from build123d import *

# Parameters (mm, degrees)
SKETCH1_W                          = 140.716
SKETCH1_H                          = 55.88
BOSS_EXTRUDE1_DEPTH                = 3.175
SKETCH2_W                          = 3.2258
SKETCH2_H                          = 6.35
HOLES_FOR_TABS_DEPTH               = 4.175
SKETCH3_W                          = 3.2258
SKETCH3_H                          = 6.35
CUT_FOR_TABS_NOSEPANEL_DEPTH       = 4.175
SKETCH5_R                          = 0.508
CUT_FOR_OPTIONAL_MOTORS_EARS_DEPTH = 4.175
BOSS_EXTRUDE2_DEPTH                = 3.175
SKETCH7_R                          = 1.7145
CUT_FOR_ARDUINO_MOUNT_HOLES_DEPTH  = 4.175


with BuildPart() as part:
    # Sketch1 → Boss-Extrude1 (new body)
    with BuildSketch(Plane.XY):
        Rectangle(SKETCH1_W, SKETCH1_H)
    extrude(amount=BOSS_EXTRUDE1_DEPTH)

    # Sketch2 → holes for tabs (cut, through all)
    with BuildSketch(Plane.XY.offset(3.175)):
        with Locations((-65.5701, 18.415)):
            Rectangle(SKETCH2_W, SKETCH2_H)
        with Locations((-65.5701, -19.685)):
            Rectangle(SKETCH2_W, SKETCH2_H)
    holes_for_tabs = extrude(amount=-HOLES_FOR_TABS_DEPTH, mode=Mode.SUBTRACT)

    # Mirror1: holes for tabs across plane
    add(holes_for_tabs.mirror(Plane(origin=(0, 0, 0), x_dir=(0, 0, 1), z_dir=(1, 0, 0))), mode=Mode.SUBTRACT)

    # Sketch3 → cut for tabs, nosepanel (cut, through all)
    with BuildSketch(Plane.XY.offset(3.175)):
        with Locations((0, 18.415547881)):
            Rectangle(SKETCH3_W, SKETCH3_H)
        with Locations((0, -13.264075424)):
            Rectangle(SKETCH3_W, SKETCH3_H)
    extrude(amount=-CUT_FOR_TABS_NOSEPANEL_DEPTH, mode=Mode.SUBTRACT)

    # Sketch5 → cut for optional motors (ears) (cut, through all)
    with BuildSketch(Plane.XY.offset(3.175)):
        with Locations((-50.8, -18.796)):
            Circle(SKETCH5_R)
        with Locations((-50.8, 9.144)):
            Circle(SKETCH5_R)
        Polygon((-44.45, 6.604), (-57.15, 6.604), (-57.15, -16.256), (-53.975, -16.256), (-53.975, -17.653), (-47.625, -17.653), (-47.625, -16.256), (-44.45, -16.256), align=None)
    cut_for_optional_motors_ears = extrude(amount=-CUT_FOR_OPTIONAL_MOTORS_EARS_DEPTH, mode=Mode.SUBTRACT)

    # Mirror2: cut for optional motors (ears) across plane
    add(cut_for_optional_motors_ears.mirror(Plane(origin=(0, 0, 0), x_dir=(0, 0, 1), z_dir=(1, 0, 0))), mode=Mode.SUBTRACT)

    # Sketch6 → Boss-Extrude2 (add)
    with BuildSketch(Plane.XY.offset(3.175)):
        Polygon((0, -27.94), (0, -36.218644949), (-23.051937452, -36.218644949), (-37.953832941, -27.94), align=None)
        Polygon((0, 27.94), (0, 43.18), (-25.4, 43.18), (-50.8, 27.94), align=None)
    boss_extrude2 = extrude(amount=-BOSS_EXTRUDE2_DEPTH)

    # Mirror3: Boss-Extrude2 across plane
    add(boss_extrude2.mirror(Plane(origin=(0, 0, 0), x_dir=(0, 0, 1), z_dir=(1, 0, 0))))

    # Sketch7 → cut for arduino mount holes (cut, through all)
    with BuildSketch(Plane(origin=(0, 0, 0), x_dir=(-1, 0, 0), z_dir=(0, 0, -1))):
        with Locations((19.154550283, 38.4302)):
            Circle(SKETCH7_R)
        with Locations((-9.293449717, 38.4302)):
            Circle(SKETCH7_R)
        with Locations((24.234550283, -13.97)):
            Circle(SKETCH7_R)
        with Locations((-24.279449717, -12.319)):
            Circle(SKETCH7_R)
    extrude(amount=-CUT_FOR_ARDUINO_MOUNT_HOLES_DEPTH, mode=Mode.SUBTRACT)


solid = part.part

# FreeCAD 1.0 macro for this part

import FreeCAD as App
import Part
import Sketcher
from FreeCAD import Vector
Q = App.Units.Quantity

doc = App.newDocument("Part")
body = doc.addObject("PartDesign::Body", "Body")

sketch1 = body.newObject("Sketcher::SketchObject", "Sketch")
sketch1.AttachmentSupport = (doc.getObject("XY_Plane"), [""])
sketch1.MapMode = "FlatFace"
sketch1.addGeometry(Part.LineSegment(Vector(-70, 28, 0), Vector(-70, -28, 0)), False)
sketch1.addGeometry(Part.LineSegment(Vector(-70, -28, 0), Vector(70, -28, 0)), False)
sketch1.addGeometry(Part.LineSegment(Vector(70, -28, 0), Vector(70, 28, 0)), False)
sketch1.addGeometry(Part.LineSegment(Vector(70, 28, 0), Vector(-70, 28, 0)), False)
sketch1.addConstraint(Sketcher.Constraint("Coincident", 0, 2, 1, 1))
sketch1.addConstraint(Sketcher.Constraint("Coincident", 1, 2, 2, 1))
sketch1.addConstraint(Sketcher.Constraint("Coincident", 2, 2, 3, 1))
sketch1.addConstraint(Sketcher.Constraint("Coincident", 3, 2, 0, 1))
sketch1.addConstraint(Sketcher.Constraint("Vertical", 0))
sketch1.addConstraint(Sketcher.Constraint("Horizontal", 1))
sketch1.addConstraint(Sketcher.Constraint("Vertical", 2))
sketch1.addConstraint(Sketcher.Constraint("Horizontal", 3))
sketch1.addConstraint(Sketcher.Constraint("Symmetric", 0, 2, 2, 2, -1, 1))
sketch1.addConstraint(Sketcher.Constraint("DistanceY", 0, 2, 0, 1, Q("2.2 in")))
sketch1.addConstraint(Sketcher.Constraint("DistanceX", 1, 1, 1, 2, Q("5.54 in")))
pad1 = body.newObject("PartDesign::Pad", "Pad")
pad1.Profile = sketch1
pad1.Length = Q("0.125 in")

sketch2 = body.newObject("Sketcher::SketchObject", "Sketch001")
sketch2.AttachmentSupport = (doc.getObject("XY_Plane"), [""])
sketch2.MapMode = "FlatFace"
sketch2.AttachmentOffset = App.Placement(Vector(0, 0, 0.125 * 25.4), App.Rotation())
sketch2.addGeometry(Part.LineSegment(Vector(-67.2, 21.6, 0), Vector(-67.2, 15.2, 0)), False)
sketch2.addGeometry(Part.LineSegment(Vector(-67.2, 15.2, 0), Vector(-64, 15.2, 0)), False)
sketch2.addGeometry(Part.LineSegment(Vector(-64, 15.2, 0), Vector(-64, 21.6, 0)), False)
sketch2.addGeometry(Part.LineSegment(Vector(-64, 21.6, 0), Vector(-67.2, 21.6, 0)), False)
sketch2.addGeometry(Part.LineSegment(Vector(-67.2, -16.5, 0), Vector(-67.2, -22.9, 0)), False)
sketch2.addGeometry(Part.LineSegment(Vector(-67.2, -22.9, 0), Vector(-64, -22.9, 0)), False)
sketch2.addGeometry(Part.LineSegment(Vector(-64, -22.9, 0), Vector(-64, -16.5, 0)), False)
sketch2.addGeometry(Part.LineSegment(Vector(-64, -16.5, 0), Vector(-67.2, -16.5, 0)), False)
sketch2.addConstraint(Sketcher.Constraint("Coincident", 0, 2, 1, 1))
sketch2.addConstraint(Sketcher.Constraint("Coincident", 1, 2, 2, 1))
sketch2.addConstraint(Sketcher.Constraint("Coincident", 2, 2, 3, 1))
sketch2.addConstraint(Sketcher.Constraint("Coincident", 3, 2, 0, 1))
sketch2.addConstraint(Sketcher.Constraint("Coincident", 4, 2, 5, 1))
sketch2.addConstraint(Sketcher.Constraint("Coincident", 5, 2, 6, 1))
sketch2.addConstraint(Sketcher.Constraint("Coincident", 6, 2, 7, 1))
sketch2.addConstraint(Sketcher.Constraint("Coincident", 7, 2, 4, 1))
sketch2.addConstraint(Sketcher.Constraint("Vertical", 0))
sketch2.addConstraint(Sketcher.Constraint("Horizontal", 1))
sketch2.addConstraint(Sketcher.Constraint("Vertical", 2))
sketch2.addConstraint(Sketcher.Constraint("Horizontal", 3))
sketch2.addConstraint(Sketcher.Constraint("Vertical", 4))
sketch2.addConstraint(Sketcher.Constraint("Horizontal", 5))
sketch2.addConstraint(Sketcher.Constraint("Vertical", 6))
sketch2.addConstraint(Sketcher.Constraint("Horizontal", 7))
sketch2.addConstraint(Sketcher.Constraint("Vertical", 3, 2, 4, 2))
sketch2.addConstraint(Sketcher.Constraint("Vertical", 2, 2, 5, 2))
sketch2.addConstraint(Sketcher.Constraint("Equal", 2, 4))
sketch2.addConstraint(Sketcher.Constraint("DistanceY", 0, 2, 0, 1, Q("0.25 in")))
sketch2.addConstraint(Sketcher.Constraint("DistanceY", -1, 1, 0, 2, Q("0.6 in")))
sketch2.addConstraint(Sketcher.Constraint("DistanceY", 4, 2, -1, 1, Q("0.9 in")))
sketch2.addConstraint(Sketcher.Constraint("DistanceX", 1, 1, 1, 2, Q("0.127 in")))
sketch2.addConstraint(Sketcher.Constraint("DistanceX", 0, 2, -1, 1, Q("2.645 in")))
pocket1 = body.newObject("PartDesign::Pocket", "Pocket")
pocket1.Profile = sketch2
pocket1.Type = "ThroughAll"
doc.recompute()

mirrored = body.newObject("PartDesign::Mirrored", "Mirrored")
mirrored.Originals = [pocket1]
mirrored.MirrorPlane = (doc.getObject("YZ_Plane"), [""])
body.Tip = mirrored

sketch3 = body.newObject("Sketcher::SketchObject", "Sketch002")
sketch3.AttachmentSupport = (doc.getObject("XY_Plane"), [""])
sketch3.MapMode = "FlatFace"
sketch3.AttachmentOffset = App.Placement(Vector(0, 0, 0.125 * 25.4), App.Rotation())
sketch3.addGeometry(Part.LineSegment(Vector(-1.6, 21.6, 0), Vector(-1.6, 15.2, 0)), False)
sketch3.addGeometry(Part.LineSegment(Vector(-1.6, 15.2, 0), Vector(1.6, 15.2, 0)), False)
sketch3.addGeometry(Part.LineSegment(Vector(1.6, 15.2, 0), Vector(1.6, 21.6, 0)), False)
sketch3.addGeometry(Part.LineSegment(Vector(1.6, 21.6, 0), Vector(-1.6, 21.6, 0)), False)
sketch3.addGeometry(Part.LineSegment(Vector(-1.6, -10.1, 0), Vector(-1.6, -16.4, 0)), False)
sketch3.addGeometry(Part.LineSegment(Vector(-1.6, -16.4, 0), Vector(1.6, -16.4, 0)), False)
sketch3.addGeometry(Part.LineSegment(Vector(1.6, -16.4, 0), Vector(1.6, -10.1, 0)), False)
sketch3.addGeometry(Part.LineSegment(Vector(1.6, -10.1, 0), Vector(-1.6, -10.1, 0)), False)
sketch3.addConstraint(Sketcher.Constraint("Coincident", 0, 2, 1, 1))
sketch3.addConstraint(Sketcher.Constraint("Coincident", 1, 2, 2, 1))
sketch3.addConstraint(Sketcher.Constraint("Coincident", 2, 2, 3, 1))
sketch3.addConstraint(Sketcher.Constraint("Coincident", 3, 2, 0, 1))
sketch3.addConstraint(Sketcher.Constraint("Coincident", 4, 2, 5, 1))
sketch3.addConstraint(Sketcher.Constraint("Coincident", 5, 2, 6, 1))
sketch3.addConstraint(Sketcher.Constraint("Coincident", 6, 2, 7, 1))
sketch3.addConstraint(Sketcher.Constraint("Coincident", 7, 2, 4, 1))
sketch3.addConstraint(Sketcher.Constraint("Vertical", 0))
sketch3.addConstraint(Sketcher.Constraint("Horizontal", 1))
sketch3.addConstraint(Sketcher.Constraint("Vertical", 2))
sketch3.addConstraint(Sketcher.Constraint("Horizontal", 3))
sketch3.addConstraint(Sketcher.Constraint("Vertical", 4))
sketch3.addConstraint(Sketcher.Constraint("Horizontal", 5))
sketch3.addConstraint(Sketcher.Constraint("Vertical", 6))
sketch3.addConstraint(Sketcher.Constraint("Horizontal", 7))
sketch3.addConstraint(Sketcher.Constraint("Vertical", 3, 2, 4, 2))
sketch3.addConstraint(Sketcher.Constraint("Vertical", 2, 2, 5, 2))
sketch3.addConstraint(Sketcher.Constraint("Equal", 2, 4))
sketch3.addConstraint(Sketcher.Constraint("DistanceY", 0, 2, 0, 1, Q("0.25 in")))
sketch3.addConstraint(Sketcher.Constraint("DistanceX", 1, 1, 1, 2, Q("0.127 in")))
sketch3.addConstraint(Sketcher.Constraint("DistanceX", 0, 2, -1, 1, Q("0.0635 in")))
sketch3.addConstraint(Sketcher.Constraint("DistanceY", -1, 1, 0, 2, Q("15.240548 mm")))
sketch3.addConstraint(Sketcher.Constraint("DistanceY", 4, 2, -1, 1, Q("16.439075 mm")))
pocket2 = body.newObject("PartDesign::Pocket", "Pocket001")
pocket2.Profile = sketch3
pocket2.Type = "ThroughAll"

sketch4 = body.newObject("Sketcher::SketchObject", "Sketch003")
sketch4.AttachmentSupport = (doc.getObject("XY_Plane"), [""])
sketch4.MapMode = "FlatFace"
sketch4.AttachmentOffset = App.Placement(Vector(0, 0, 0.125 * 25.4), App.Rotation())
sketch4.addGeometry(Part.Circle(Vector(-50.8, -18.8, 0), Vector(0, 0, 1), 0.5), False)
sketch4.addGeometry(Part.Circle(Vector(-50.8, 9.1, 0), Vector(0, 0, 1), 0.5), False)
sketch4.addGeometry(Part.LineSegment(Vector(-44.5, 6.6, 0), Vector(-57.1, 6.6, 0)), False)
sketch4.addGeometry(Part.LineSegment(Vector(-57.1, 6.6, 0), Vector(-57.1, -16.3, 0)), False)
sketch4.addGeometry(Part.LineSegment(Vector(-57.1, -16.3, 0), Vector(-54, -16.3, 0)), False)
sketch4.addGeometry(Part.LineSegment(Vector(-54, -16.3, 0), Vector(-54, -17.7, 0)), False)
sketch4.addGeometry(Part.LineSegment(Vector(-54, -17.7, 0), Vector(-47.6, -17.7, 0)), False)
sketch4.addGeometry(Part.LineSegment(Vector(-47.6, -17.7, 0), Vector(-47.6, -16.3, 0)), False)
sketch4.addGeometry(Part.LineSegment(Vector(-47.6, -16.3, 0), Vector(-44.5, -16.3, 0)), False)
sketch4.addGeometry(Part.LineSegment(Vector(-44.5, -16.3, 0), Vector(-44.5, 6.6, 0)), False)
sketch4.addConstraint(Sketcher.Constraint("Coincident", 2, 2, 3, 1))
sketch4.addConstraint(Sketcher.Constraint("Coincident", 3, 2, 4, 1))
sketch4.addConstraint(Sketcher.Constraint("Coincident", 4, 2, 5, 1))
sketch4.addConstraint(Sketcher.Constraint("Coincident", 5, 2, 6, 1))
sketch4.addConstraint(Sketcher.Constraint("Coincident", 6, 2, 7, 1))
sketch4.addConstraint(Sketcher.Constraint("Coincident", 7, 2, 8, 1))
sketch4.addConstraint(Sketcher.Constraint("Coincident", 8, 2, 9, 1))
sketch4.addConstraint(Sketcher.Constraint("Coincident", 9, 2, 2, 1))
sketch4.addConstraint(Sketcher.Constraint("Horizontal", 2))
sketch4.addConstraint(Sketcher.Constraint("Vertical", 3))
sketch4.addConstraint(Sketcher.Constraint("Horizontal", 4))
sketch4.addConstraint(Sketcher.Constraint("Vertical", 5))
sketch4.addConstraint(Sketcher.Constraint("Horizontal", 6))
sketch4.addConstraint(Sketcher.Constraint("Vertical", 7))
sketch4.addConstraint(Sketcher.Constraint("Horizontal", 8))
sketch4.addConstraint(Sketcher.Constraint("Vertical", 9))
sketch4.addConstraint(Sketcher.Constraint("Equal", 0, 1))
sketch4.addConstraint(Sketcher.Constraint("Horizontal", 4, 2, 7, 2))
sketch4.addConstraint(Sketcher.Constraint("Vertical", 0, 3, 1, 3))
sketch4.addConstraint(Sketcher.Constraint("Equal", 4, 8))
sketch4.addConstraint(Sketcher.Constraint("Diameter", 0, Q("0.04 in")))
sketch4.addConstraint(Sketcher.Constraint("DistanceX", 2, 2, 2, 1, Q("0.5 in")))
sketch4.addConstraint(Sketcher.Constraint("DistanceY", 3, 2, 3, 1, Q("0.9 in")))
sketch4.addConstraint(Sketcher.Constraint("DistanceX", 0, 3, -1, 1, Q("2 in")))
sketch4.addConstraint(Sketcher.Constraint("DistanceY", 0, 3, 2, 2, Q("1 in")))
sketch4.addConstraint(Sketcher.Constraint("DistanceY", 3, 2, 1, 3, Q("1 in")))
sketch4.addConstraint(Sketcher.Constraint("DistanceX", 6, 1, 6, 2, Q("0.25 in")))
sketch4.addConstraint(Sketcher.Constraint("DistanceY", 5, 2, 5, 1, Q("0.055 in")))
sketch4.addConstraint(Sketcher.Constraint("DistanceY", 0, 3, -1, 1, Q("0.74 in")))
sketch4.addConstraint(Sketcher.Constraint("DistanceX", 2, 2, -1, 1, Q("2.25 in")))
pocket3 = body.newObject("PartDesign::Pocket", "Pocket002")
pocket3.Profile = sketch4
pocket3.Type = "ThroughAll"
doc.recompute()

mirrored2 = body.newObject("PartDesign::Mirrored", "Mirrored001")
mirrored2.Originals = [pocket3]
mirrored2.MirrorPlane = (doc.getObject("YZ_Plane"), [""])
body.Tip = mirrored2

sketch5 = body.newObject("Sketcher::SketchObject", "Sketch004")
sketch5.AttachmentSupport = (doc.getObject("XY_Plane"), [""])
sketch5.MapMode = "FlatFace"
sketch5.AttachmentOffset = App.Placement(Vector(0, 0, 0.125 * 25.4), App.Rotation())
sketch5.addGeometry(Part.LineSegment(Vector(0, -36, 0), Vector(0, -28, 0)), False)
sketch5.addGeometry(Part.LineSegment(Vector(0, -28, 0), Vector(-38, -28, 0)), False)
sketch5.addGeometry(Part.LineSegment(Vector(-38, -28, 0), Vector(-23, -36, 0)), False)
sketch5.addGeometry(Part.LineSegment(Vector(-23, -36, 0), Vector(0, -36, 0)), False)
sketch5.addGeometry(Part.LineSegment(Vector(0, 28, 0), Vector(0, 43, 0)), False)
sketch5.addGeometry(Part.LineSegment(Vector(0, 43, 0), Vector(-25, 43, 0)), False)
sketch5.addGeometry(Part.LineSegment(Vector(-25, 43, 0), Vector(-51, 28, 0)), False)
sketch5.addGeometry(Part.LineSegment(Vector(-51, 28, 0), Vector(0, 28, 0)), False)
sketch5.addConstraint(Sketcher.Constraint("Coincident", 0, 2, 1, 1))
sketch5.addConstraint(Sketcher.Constraint("Coincident", 1, 2, 2, 1))
sketch5.addConstraint(Sketcher.Constraint("Coincident", 2, 2, 3, 1))
sketch5.addConstraint(Sketcher.Constraint("Coincident", 3, 2, 0, 1))
sketch5.addConstraint(Sketcher.Constraint("Coincident", 4, 2, 5, 1))
sketch5.addConstraint(Sketcher.Constraint("Coincident", 5, 2, 6, 1))
sketch5.addConstraint(Sketcher.Constraint("Coincident", 6, 2, 7, 1))
sketch5.addConstraint(Sketcher.Constraint("Coincident", 7, 2, 4, 1))
sketch5.addConstraint(Sketcher.Constraint("Vertical", 0))
sketch5.addConstraint(Sketcher.Constraint("Horizontal", 1))
sketch5.addConstraint(Sketcher.Constraint("Horizontal", 3))
sketch5.addConstraint(Sketcher.Constraint("Vertical", 4))
sketch5.addConstraint(Sketcher.Constraint("Horizontal", 5))
sketch5.addConstraint(Sketcher.Constraint("Horizontal", 7))
sketch5.addConstraint(Sketcher.Constraint("Symmetric", 0, 2, 7, 2, -1, 1))
sketch5.addConstraint(Sketcher.Constraint("PointOnObject", 0, 2, -2))
sketch5.addConstraint(Sketcher.Constraint("DistanceX", 5, 2, 5, 1, Q("1 in")))
sketch5.addConstraint(Sketcher.Constraint("DistanceX", 7, 1, 7, 2, Q("2 in")))
sketch5.addConstraint(Sketcher.Constraint("DistanceY", 4, 1, 4, 2, Q("0.6 in")))
sketch5.addConstraint(Sketcher.Constraint("DistanceY", 0, 2, -1, 1, Q("1.1 in")))
sketch5.addConstraint(Sketcher.Constraint("DistanceX", 1, 2, 1, 1, Q("37.953833 mm")))
sketch5.addConstraint(Sketcher.Constraint("DistanceX", 3, 1, 3, 2, Q("23.051937 mm")))
sketch5.addConstraint(Sketcher.Constraint("DistanceY", 0, 1, 0, 2, Q("8.278645 mm")))
pad2 = body.newObject("PartDesign::Pad", "Pad001")
pad2.Profile = sketch5
pad2.Length = Q("0.125 in")
pad2.Reversed = True
doc.recompute()

mirrored3 = body.newObject("PartDesign::Mirrored", "Mirrored002")
mirrored3.Originals = [pad2]
mirrored3.MirrorPlane = (doc.getObject("YZ_Plane"), [""])
body.Tip = mirrored3

sketch6 = body.newObject("Sketcher::SketchObject", "Sketch005")
sketch6.AttachmentSupport = (doc.getObject("XY_Plane"), [""])
sketch6.MapMode = "FlatFace"
sketch6.addGeometry(Part.Circle(Vector(-19.2, 38.4, 0), Vector(0, 0, 1), 1.7), False)
sketch6.addGeometry(Part.Circle(Vector(9.3, 38.4, 0), Vector(0, 0, 1), 1.7), False)
sketch6.addGeometry(Part.Circle(Vector(-24.2, -14, 0), Vector(0, 0, 1), 1.7), False)
sketch6.addGeometry(Part.Circle(Vector(24.3, -12.3, 0), Vector(0, 0, 1), 1.7), False)
sketch6.addConstraint(Sketcher.Constraint("Equal", 0, 1))
sketch6.addConstraint(Sketcher.Constraint("Equal", 1, 2))
sketch6.addConstraint(Sketcher.Constraint("Equal", 2, 3))
sketch6.addConstraint(Sketcher.Constraint("Horizontal", 0, 3, 1, 3))
sketch6.addConstraint(Sketcher.Constraint("Diameter", 0, Q("0.135 in")))
sketch6.addConstraint(Sketcher.Constraint("DistanceX", 2, 3, 0, 3, Q("0.2 in")))
sketch6.addConstraint(Sketcher.Constraint("DistanceY", 2, 3, -1, 1, Q("0.55 in")))
sketch6.addConstraint(Sketcher.Constraint("DistanceX", 0, 3, 1, 3, Q("1.12 in")))
sketch6.addConstraint(Sketcher.Constraint("DistanceX", 2, 3, 3, 3, Q("1.91 in")))
sketch6.addConstraint(Sketcher.Constraint("DistanceY", -1, 1, 0, 3, Q("1.513 in")))
sketch6.addConstraint(Sketcher.Constraint("DistanceY", 3, 3, -1, 1, Q("0.485 in")))
sketch6.addConstraint(Sketcher.Constraint("DistanceX", 0, 3, -1, 1, Q("19.15455 mm")))
pocket4 = body.newObject("PartDesign::Pocket", "Pocket003")
pocket4.Profile = sketch6
pocket4.Type = "ThroughAll"
pocket4.Reversed = True

doc.recompute()
